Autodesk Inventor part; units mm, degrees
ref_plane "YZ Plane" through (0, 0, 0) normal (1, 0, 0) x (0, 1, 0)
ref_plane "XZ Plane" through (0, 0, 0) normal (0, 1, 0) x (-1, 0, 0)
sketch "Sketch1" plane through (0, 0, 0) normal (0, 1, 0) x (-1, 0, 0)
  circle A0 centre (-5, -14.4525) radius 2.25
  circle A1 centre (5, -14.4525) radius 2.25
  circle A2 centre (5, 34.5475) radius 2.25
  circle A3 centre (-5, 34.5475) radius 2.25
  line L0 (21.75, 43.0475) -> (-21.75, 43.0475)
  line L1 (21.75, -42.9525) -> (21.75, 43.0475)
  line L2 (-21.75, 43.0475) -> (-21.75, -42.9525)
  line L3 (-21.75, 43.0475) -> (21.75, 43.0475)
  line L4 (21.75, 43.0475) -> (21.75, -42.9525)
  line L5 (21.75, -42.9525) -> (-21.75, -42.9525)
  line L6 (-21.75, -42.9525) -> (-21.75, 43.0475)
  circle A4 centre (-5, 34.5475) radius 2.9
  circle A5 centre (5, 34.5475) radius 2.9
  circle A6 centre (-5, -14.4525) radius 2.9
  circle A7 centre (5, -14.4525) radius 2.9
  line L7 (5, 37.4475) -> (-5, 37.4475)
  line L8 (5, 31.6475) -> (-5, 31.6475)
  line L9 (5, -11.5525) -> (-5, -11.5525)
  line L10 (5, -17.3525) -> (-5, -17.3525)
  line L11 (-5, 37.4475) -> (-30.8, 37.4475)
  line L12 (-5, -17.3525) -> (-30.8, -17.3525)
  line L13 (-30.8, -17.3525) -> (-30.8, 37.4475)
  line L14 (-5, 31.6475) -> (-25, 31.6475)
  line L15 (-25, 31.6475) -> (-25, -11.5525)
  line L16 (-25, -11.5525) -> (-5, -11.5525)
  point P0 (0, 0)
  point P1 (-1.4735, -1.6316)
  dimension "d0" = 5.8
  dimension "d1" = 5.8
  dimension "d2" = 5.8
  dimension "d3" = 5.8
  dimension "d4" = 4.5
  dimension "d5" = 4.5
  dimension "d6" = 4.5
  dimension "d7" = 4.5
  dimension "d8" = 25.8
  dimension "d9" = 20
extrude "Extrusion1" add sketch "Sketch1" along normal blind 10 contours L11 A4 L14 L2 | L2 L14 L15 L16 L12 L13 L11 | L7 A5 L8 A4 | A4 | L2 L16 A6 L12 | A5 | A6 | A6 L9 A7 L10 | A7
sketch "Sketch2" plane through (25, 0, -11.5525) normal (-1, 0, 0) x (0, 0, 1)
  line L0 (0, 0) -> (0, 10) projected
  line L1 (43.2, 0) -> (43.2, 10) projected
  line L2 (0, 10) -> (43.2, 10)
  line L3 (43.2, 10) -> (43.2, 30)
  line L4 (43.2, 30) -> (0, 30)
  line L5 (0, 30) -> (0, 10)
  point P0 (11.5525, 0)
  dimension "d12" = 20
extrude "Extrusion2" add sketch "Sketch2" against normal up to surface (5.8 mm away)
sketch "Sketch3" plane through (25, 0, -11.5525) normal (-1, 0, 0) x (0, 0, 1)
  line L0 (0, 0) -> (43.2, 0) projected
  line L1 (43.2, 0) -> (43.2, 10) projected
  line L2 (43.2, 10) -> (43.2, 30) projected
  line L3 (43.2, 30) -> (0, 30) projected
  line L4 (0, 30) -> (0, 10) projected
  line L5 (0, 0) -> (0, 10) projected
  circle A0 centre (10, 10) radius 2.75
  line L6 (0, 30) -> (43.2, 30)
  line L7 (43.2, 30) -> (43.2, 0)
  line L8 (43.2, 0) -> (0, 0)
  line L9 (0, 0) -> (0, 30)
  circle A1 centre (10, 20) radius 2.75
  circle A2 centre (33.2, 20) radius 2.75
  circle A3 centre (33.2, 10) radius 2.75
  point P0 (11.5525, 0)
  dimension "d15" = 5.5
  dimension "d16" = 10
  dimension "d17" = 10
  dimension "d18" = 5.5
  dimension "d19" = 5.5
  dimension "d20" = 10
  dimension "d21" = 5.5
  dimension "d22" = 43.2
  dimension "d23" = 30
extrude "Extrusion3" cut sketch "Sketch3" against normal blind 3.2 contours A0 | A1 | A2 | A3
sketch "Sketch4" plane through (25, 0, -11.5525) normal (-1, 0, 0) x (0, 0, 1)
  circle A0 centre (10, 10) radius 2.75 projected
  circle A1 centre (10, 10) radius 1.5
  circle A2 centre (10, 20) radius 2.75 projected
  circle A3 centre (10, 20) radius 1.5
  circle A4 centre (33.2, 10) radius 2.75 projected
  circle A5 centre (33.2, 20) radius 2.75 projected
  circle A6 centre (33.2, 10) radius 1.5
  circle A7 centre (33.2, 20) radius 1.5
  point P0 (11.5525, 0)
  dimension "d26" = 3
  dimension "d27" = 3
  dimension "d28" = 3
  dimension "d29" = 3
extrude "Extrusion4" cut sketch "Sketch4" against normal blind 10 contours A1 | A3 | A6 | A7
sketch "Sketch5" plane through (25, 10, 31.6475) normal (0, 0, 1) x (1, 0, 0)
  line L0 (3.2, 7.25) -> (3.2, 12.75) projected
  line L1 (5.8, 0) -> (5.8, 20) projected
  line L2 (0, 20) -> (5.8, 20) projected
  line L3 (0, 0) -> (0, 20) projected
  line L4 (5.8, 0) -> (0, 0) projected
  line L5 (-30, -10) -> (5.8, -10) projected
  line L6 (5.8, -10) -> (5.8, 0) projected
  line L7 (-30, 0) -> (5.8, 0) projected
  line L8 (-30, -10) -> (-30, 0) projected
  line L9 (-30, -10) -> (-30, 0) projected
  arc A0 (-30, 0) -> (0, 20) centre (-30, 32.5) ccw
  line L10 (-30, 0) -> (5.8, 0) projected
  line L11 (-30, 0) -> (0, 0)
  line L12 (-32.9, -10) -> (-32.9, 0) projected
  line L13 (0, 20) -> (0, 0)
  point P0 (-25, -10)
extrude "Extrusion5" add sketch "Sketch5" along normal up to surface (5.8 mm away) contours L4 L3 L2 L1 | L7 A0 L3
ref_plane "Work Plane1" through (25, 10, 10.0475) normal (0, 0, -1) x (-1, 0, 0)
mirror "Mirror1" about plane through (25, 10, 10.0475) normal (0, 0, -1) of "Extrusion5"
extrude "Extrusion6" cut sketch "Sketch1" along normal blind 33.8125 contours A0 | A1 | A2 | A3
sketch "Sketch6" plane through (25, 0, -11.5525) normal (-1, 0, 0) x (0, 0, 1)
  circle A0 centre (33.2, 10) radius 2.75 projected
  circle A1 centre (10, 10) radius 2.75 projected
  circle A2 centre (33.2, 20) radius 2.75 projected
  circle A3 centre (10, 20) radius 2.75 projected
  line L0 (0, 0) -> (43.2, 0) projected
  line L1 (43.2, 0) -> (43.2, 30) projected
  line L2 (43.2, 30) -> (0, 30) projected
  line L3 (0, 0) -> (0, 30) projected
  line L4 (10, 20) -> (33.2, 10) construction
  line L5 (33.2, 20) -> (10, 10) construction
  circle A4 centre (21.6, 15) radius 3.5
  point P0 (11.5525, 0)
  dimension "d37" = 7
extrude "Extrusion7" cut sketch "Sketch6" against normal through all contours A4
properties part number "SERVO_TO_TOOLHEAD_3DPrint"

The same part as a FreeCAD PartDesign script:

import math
import FreeCAD as App
import Part
import Sketcher

V = App.Vector
Q = App.Units.Quantity

doc = App.newDocument("Part")
body = doc.addObject("PartDesign::Body", "Body")

sketch1 = body.newObject("Sketcher::SketchObject", "Sketch")
sketch1.AttachmentSupport = (doc.getObject("XZ_Plane"), [""])
sketch1.MapMode = "FlatFace"
sketch1.addGeometry(Part.LineSegment(V(30.8, 37.4475, 0), V(30.8, -17.3525, 0)), False)
sketch1.addGeometry(Part.LineSegment(V(30.8, -17.3525, 0), V(-5, -17.3525, 0)), False)
sketch1.addGeometry(Part.ArcOfCircle(Part.Circle(V(-5, -14.4525, 0), V(0, 0, 1), 2.9), math.radians(90), math.radians(270)), False)
sketch1.addGeometry(Part.LineSegment(V(-5, -11.5525, 0), V(25, -11.5525, 0)), False)
sketch1.addGeometry(Part.LineSegment(V(25, -11.5525, 0), V(25, 31.6475, 0)), False)
sketch1.addGeometry(Part.LineSegment(V(25, 31.6475, 0), V(-5, 31.6475, 0)), False)
sketch1.addGeometry(Part.ArcOfCircle(Part.Circle(V(-5, 34.5475, 0), V(0, 0, 1), 2.9), math.radians(90), math.radians(270)), False)
sketch1.addGeometry(Part.LineSegment(V(-5, 37.4475, 0), V(30.8, 37.4475, 0)), False)
sketch1.addGeometry(Part.Circle(V(5, 34.5475, 0), V(0, 0, 1), 2.25), False)
sketch1.addGeometry(Part.Circle(V(-5, 34.5475, 0), V(0, 0, 1), 2.25), False)
sketch1.addGeometry(Part.Circle(V(5, -14.4525, 0), V(0, 0, 1), 2.25), False)
sketch1.addGeometry(Part.Circle(V(-5, -14.4525, 0), V(0, 0, 1), 2.25), False)
sketch1.addConstraint(Sketcher.Constraint("Coincident", 0, 2, 1, 1))
sketch1.addConstraint(Sketcher.Constraint("Tangent", 1, 2, 2, 2))
sketch1.addConstraint(Sketcher.Constraint("Tangent", 2, 1, 3, 1))
sketch1.addConstraint(Sketcher.Constraint("Coincident", 3, 2, 4, 1))
sketch1.addConstraint(Sketcher.Constraint("Coincident", 4, 2, 5, 1))
sketch1.addConstraint(Sketcher.Constraint("Tangent", 5, 2, 6, 2))
sketch1.addConstraint(Sketcher.Constraint("Tangent", 6, 1, 7, 1))
sketch1.addConstraint(Sketcher.Constraint("Coincident", 7, 2, 0, 1))
sketch1.addConstraint(Sketcher.Constraint("Vertical", 0))
sketch1.addConstraint(Sketcher.Constraint("Horizontal", 1))
sketch1.addConstraint(Sketcher.Constraint("Horizontal", 3))
sketch1.addConstraint(Sketcher.Constraint("Vertical", 4))
sketch1.addConstraint(Sketcher.Constraint("Horizontal", 5))
sketch1.addConstraint(Sketcher.Constraint("Horizontal", 7))
sketch1.addConstraint(Sketcher.Constraint("Coincident", 9, 3, 6, 3))
sketch1.addConstraint(Sketcher.Constraint("Coincident", 11, 3, 2, 3))
sketch1.addConstraint(Sketcher.Constraint("Equal", 2, 6))
sketch1.addConstraint(Sketcher.Constraint("Equal", 8, 9))
sketch1.addConstraint(Sketcher.Constraint("Equal", 9, 10))
sketch1.addConstraint(Sketcher.Constraint("Equal", 10, 11))
sketch1.addConstraint(Sketcher.Constraint("Symmetric", 6, 3, 8, 3, -2))
sketch1.addConstraint(Sketcher.Constraint("Symmetric", 2, 3, 10, 3, -2))
sketch1.addConstraint(Sketcher.Constraint("Vertical", 2, 3, 6, 3))
sketch1.addConstraint(Sketcher.Constraint("Diameter", 8, Q("4.5 mm")))
sketch1.addConstraint(Sketcher.Constraint("Radius", 2, Q("2.9 mm")))
sketch1.addConstraint(Sketcher.Constraint("DistanceX", 10, 3, 3, 2, Q("20 mm")))
sketch1.addConstraint(Sketcher.Constraint("DistanceX", 10, 3, 0, 2, Q("25.8 mm")))
sketch1.addConstraint(Sketcher.Constraint("DistanceX", 3, 1, 3, 2, Q("30 mm")))
sketch1.addConstraint(Sketcher.Constraint("DistanceY", 0, 2, 0, 1, Q("54.8 mm")))
sketch1.addConstraint(Sketcher.Constraint("DistanceY", 2, 3, -1, 1, Q("14.4525 mm")))
pad1 = body.newObject("PartDesign::Pad", "Pad")
pad1.Profile = sketch1
pad1.Length = 10
pad1.Reversed = True

sketch2 = body.newObject("Sketcher::SketchObject", "Sketch001")
sketch2.AttachmentSupport = (doc.getObject("YZ_Plane"), [""])
sketch2.MapMode = "FlatFace"
sketch2.AttachmentOffset = App.Placement(V(0, 0, 25), App.Rotation())
sketch2.addGeometry(Part.LineSegment(V(30, -11.5525, 0), V(10, -11.5525, 0)), False)
sketch2.addGeometry(Part.LineSegment(V(10, -11.5525, 0), V(10, 31.6475, 0)), False)
sketch2.addGeometry(Part.LineSegment(V(10, 31.6475, 0), V(30, 31.6475, 0)), False)
sketch2.addGeometry(Part.LineSegment(V(30, 31.6475, 0), V(30, -11.5525, 0)), False)
sketch2.addConstraint(Sketcher.Constraint("Coincident", 0, 2, 1, 1))
sketch2.addConstraint(Sketcher.Constraint("Coincident", 1, 2, 2, 1))
sketch2.addConstraint(Sketcher.Constraint("Coincident", 2, 2, 3, 1))
sketch2.addConstraint(Sketcher.Constraint("Coincident", 3, 2, 0, 1))
sketch2.addConstraint(Sketcher.Constraint("Horizontal", 0))
sketch2.addConstraint(Sketcher.Constraint("Vertical", 1))
sketch2.addConstraint(Sketcher.Constraint("Horizontal", 2))
sketch2.addConstraint(Sketcher.Constraint("Vertical", 3))
sketch2.addConstraint(Sketcher.Constraint("DistanceX", 0, 2, 0, 1, Q("20 mm")))
sketch2.addConstraint(Sketcher.Constraint("DistanceY", 1, 1, 1, 2, Q("43.2 mm")))
sketch2.addConstraint(Sketcher.Constraint("DistanceX", -1, 1, 0, 2, Q("10 mm")))
sketch2.addConstraint(Sketcher.Constraint("DistanceY", 0, 2, -1, 1, Q("11.5525 mm")))
pad2 = body.newObject("PartDesign::Pad", "Pad001")
pad2.Profile = sketch2
pad2.Length = 5.8

sketch3 = body.newObject("Sketcher::SketchObject", "Sketch002")
sketch3.AttachmentSupport = (doc.getObject("YZ_Plane"), [""])
sketch3.MapMode = "FlatFace"
sketch3.AttachmentOffset = App.Placement(V(0, 0, 25), App.Rotation())
sketch3.addGeometry(Part.Circle(V(10, -1.5525, 0), V(0, 0, 1), 2.75), False)
sketch3.addGeometry(Part.Circle(V(20, -1.5525, 0), V(0, 0, 1), 2.75), False)
sketch3.addGeometry(Part.Circle(V(20, 21.6475, 0), V(0, 0, 1), 2.75), False)
sketch3.addGeometry(Part.Circle(V(10, 21.6475, 0), V(0, 0, 1), 2.75), False)
sketch3.addConstraint(Sketcher.Constraint("Equal", 0, 1))
sketch3.addConstraint(Sketcher.Constraint("Equal", 1, 2))
sketch3.addConstraint(Sketcher.Constraint("Equal", 2, 3))
sketch3.addConstraint(Sketcher.Constraint("Horizontal", 0, 3, 1, 3))
sketch3.addConstraint(Sketcher.Constraint("Horizontal", 2, 3, 3, 3))
sketch3.addConstraint(Sketcher.Constraint("Vertical", 1, 3, 2, 3))
sketch3.addConstraint(Sketcher.Constraint("Vertical", 0, 3, 3, 3))
sketch3.addConstraint(Sketcher.Constraint("Diameter", 0, Q("5.5 mm")))
sketch3.addConstraint(Sketcher.Constraint("DistanceX", -1, 1, 0, 3, Q("10 mm")))
sketch3.addConstraint(Sketcher.Constraint("DistanceX", 0, 3, 1, 3, Q("10 mm")))
sketch3.addConstraint(Sketcher.Constraint("DistanceY", 1, 3, 2, 3, Q("23.2 mm")))
sketch3.addConstraint(Sketcher.Constraint("DistanceY", 0, 3, -1, 1, Q("1.5525 mm")))
pocket1 = body.newObject("PartDesign::Pocket", "Pocket")
pocket1.Profile = sketch3
pocket1.Length = 3.2
pocket1.Reversed = True

sketch4 = body.newObject("Sketcher::SketchObject", "Sketch003")
sketch4.AttachmentSupport = (doc.getObject("YZ_Plane"), [""])
sketch4.MapMode = "FlatFace"
sketch4.AttachmentOffset = App.Placement(V(0, 0, 25), App.Rotation())
sketch4.addGeometry(Part.Circle(V(10, -1.5525, 0), V(0, 0, 1), 1.5), False)
sketch4.addGeometry(Part.Circle(V(20, -1.5525, 0), V(0, 0, 1), 1.5), False)
sketch4.addGeometry(Part.Circle(V(10, 21.6475, 0), V(0, 0, 1), 1.5), False)
sketch4.addGeometry(Part.Circle(V(20, 21.6475, 0), V(0, 0, 1), 1.5), False)
sketch4.addConstraint(Sketcher.Constraint("Equal", 0, 1))
sketch4.addConstraint(Sketcher.Constraint("Equal", 1, 2))
sketch4.addConstraint(Sketcher.Constraint("Equal", 2, 3))
sketch4.addConstraint(Sketcher.Constraint("Horizontal", 0, 3, 1, 3))
sketch4.addConstraint(Sketcher.Constraint("Horizontal", 2, 3, 3, 3))
sketch4.addConstraint(Sketcher.Constraint("Vertical", 0, 3, 2, 3))
sketch4.addConstraint(Sketcher.Constraint("Vertical", 1, 3, 3, 3))
sketch4.addConstraint(Sketcher.Constraint("Diameter", 0, Q("3 mm")))
sketch4.addConstraint(Sketcher.Constraint("DistanceX", -1, 1, 0, 3, Q("10 mm")))
sketch4.addConstraint(Sketcher.Constraint("DistanceX", -1, 1, 1, 3, Q("20 mm")))
sketch4.addConstraint(Sketcher.Constraint("DistanceY", 0, 3, 2, 3, Q("23.2 mm")))
sketch4.addConstraint(Sketcher.Constraint("DistanceY", 0, 3, -1, 1, Q("1.5525 mm")))
pocket2 = body.newObject("PartDesign::Pocket", "Pocket001")
pocket2.Profile = sketch4
pocket2.Length = 10
pocket2.Reversed = True

sketch5 = body.newObject("Sketcher::SketchObject", "Sketch004")
sketch5.AttachmentSupport = (doc.getObject("XY_Plane"), [""])
sketch5.MapMode = "FlatFace"
sketch5.AttachmentOffset = App.Placement(V(0, 0, 31.6475), App.Rotation())
sketch5.addGeometry(Part.LineSegment(V(30.8, 10, 0), V(30.8, 30, 0)), False)
sketch5.addGeometry(Part.LineSegment(V(30.8, 30, 0), V(25, 30, 0)), False)
sketch5.addGeometry(Part.ArcOfCircle(Part.Circle(V(-5, 42.5, 0), V(0, 0, 1), 32.5), math.radians(-90), math.radians(-22.619865)), False)
sketch5.addGeometry(Part.LineSegment(V(-5, 10, 0), V(30.8, 10, 0)), False)
sketch5.addConstraint(Sketcher.Constraint("Coincident", 0, 2, 1, 1))
sketch5.addConstraint(Sketcher.Constraint("Coincident", 1, 2, 2, 2))
sketch5.addConstraint(Sketcher.Constraint("Tangent", 2, 1, 3, 1))
sketch5.addConstraint(Sketcher.Constraint("Coincident", 3, 2, 0, 1))
sketch5.addConstraint(Sketcher.Constraint("Vertical", 0))
sketch5.addConstraint(Sketcher.Constraint("Horizontal", 1))
sketch5.addConstraint(Sketcher.Constraint("Horizontal", 3))
sketch5.addConstraint(Sketcher.Constraint("Radius", 2, Q("32.5 mm")))
sketch5.addConstraint(Sketcher.Constraint("DistanceY", 0, 1, 0, 2, Q("20 mm")))
sketch5.addConstraint(Sketcher.Constraint("DistanceX", 1, 2, 1, 1, Q("5.8 mm")))
sketch5.addConstraint(Sketcher.Constraint("DistanceX", 2, 3, -1, 1, Q("5 mm")))
sketch5.addConstraint(Sketcher.Constraint("DistanceY", -1, 1, 0, 2, Q("30 mm")))
pad3 = body.newObject("PartDesign::Pad", "Pad002")
pad3.Profile = sketch5
pad3.Length = 5.8
doc.recompute()

datumplane = body.newObject("PartDesign::Plane", "DatumPlane")
datumplane.AttachmentSupport = (doc.getObject("XY_Plane"), [""])
datumplane.MapMode = "FlatFace"
datumplane.AttachmentOffset = App.Placement(V(0, 0, 10.0475), App.Rotation())
mirrored = body.newObject("PartDesign::Mirrored", "Mirrored")
mirrored.Originals = [pad3]
mirrored.MirrorPlane = (datumplane, [""])
body.Tip = mirrored

sketch6 = body.newObject("Sketcher::SketchObject", "Sketch005")
sketch6.AttachmentSupport = (doc.getObject("XZ_Plane"), [""])
sketch6.MapMode = "FlatFace"
sketch6.addGeometry(Part.Circle(V(5, -14.4525, 0), V(0, 0, 1), 2.25), False)
sketch6.addGeometry(Part.Circle(V(-5, -14.4525, 0), V(0, 0, 1), 2.25), False)
sketch6.addGeometry(Part.Circle(V(-5, 34.5475, 0), V(0, 0, 1), 2.25), False)
sketch6.addGeometry(Part.Circle(V(5, 34.5475, 0), V(0, 0, 1), 2.25), False)
sketch6.addConstraint(Sketcher.Constraint("Equal", 0, 1))
sketch6.addConstraint(Sketcher.Constraint("Equal", 1, 2))
sketch6.addConstraint(Sketcher.Constraint("Equal", 2, 3))
sketch6.addConstraint(Sketcher.Constraint("Symmetric", 0, 3, 1, 3, -2))
sketch6.addConstraint(Sketcher.Constraint("Symmetric", 2, 3, 3, 3, -2))
sketch6.addConstraint(Sketcher.Constraint("Vertical", 1, 3, 2, 3))
sketch6.addConstraint(Sketcher.Constraint("Diameter", 0, Q("4.5 mm")))
sketch6.addConstraint(Sketcher.Constraint("DistanceX", -1, 1, 0, 3, Q("5 mm")))
sketch6.addConstraint(Sketcher.Constraint("DistanceY", 1, 3, 2, 3, Q("49 mm")))
sketch6.addConstraint(Sketcher.Constraint("DistanceY", 0, 3, -1, 1, Q("14.4525 mm")))
pocket3 = body.newObject("PartDesign::Pocket", "Pocket002")
pocket3.Profile = sketch6
pocket3.Length = 33.8125

sketch7 = body.newObject("Sketcher::SketchObject", "Sketch006")
sketch7.AttachmentSupport = (doc.getObject("YZ_Plane"), [""])
sketch7.MapMode = "FlatFace"
sketch7.AttachmentOffset = App.Placement(V(0, 0, 25), App.Rotation())
sketch7.addGeometry(Part.Circle(V(15, 10.0475, 0), V(0, 0, 1), 3.5), False)
sketch7.addConstraint(Sketcher.Constraint("Diameter", 0, Q("7 mm")))
sketch7.addConstraint(Sketcher.Constraint("DistanceX", -1, 1, 0, 3, Q("15 mm")))
sketch7.addConstraint(Sketcher.Constraint("DistanceY", -1, 1, 0, 3, Q("10.0475 mm")))
pocket4 = body.newObject("PartDesign::Pocket", "Pocket003")
pocket4.Profile = sketch7
pocket4.Type = "ThroughAll"
pocket4.Reversed = True

doc.recompute()
